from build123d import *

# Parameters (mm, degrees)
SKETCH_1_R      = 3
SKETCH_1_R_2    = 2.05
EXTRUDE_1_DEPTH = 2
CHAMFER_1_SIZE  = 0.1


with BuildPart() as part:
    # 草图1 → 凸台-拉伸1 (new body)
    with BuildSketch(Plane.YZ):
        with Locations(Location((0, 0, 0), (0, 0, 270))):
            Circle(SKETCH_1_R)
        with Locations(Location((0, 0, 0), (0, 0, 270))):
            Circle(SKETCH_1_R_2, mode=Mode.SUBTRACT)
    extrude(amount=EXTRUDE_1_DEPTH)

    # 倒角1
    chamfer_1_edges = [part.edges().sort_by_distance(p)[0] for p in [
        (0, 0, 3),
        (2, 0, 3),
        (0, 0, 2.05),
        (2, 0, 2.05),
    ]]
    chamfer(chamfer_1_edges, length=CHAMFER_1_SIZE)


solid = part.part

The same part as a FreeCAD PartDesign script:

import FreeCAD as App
import Part
import Sketcher

V = App.Vector
Q = App.Units.Quantity


def edges_at(feature, points):
    """Names of the edges that pass closest to the given points."""
    edges = feature.Shape.Edges
    near = lambda p: min(range(len(edges)), key=lambda i: edges[i].distToShape(Part.Vertex(*p))[0])
    return sorted({f"Edge{near(p) + 1}" for p in points})

doc = App.newDocument("Part")
body = doc.addObject("PartDesign::Body", "Body")

# Sketch on YZ plane
sketch1 = body.newObject("Sketcher::SketchObject", "Sketch")
sketch1.AttachmentSupport = (doc.getObject("YZ_Plane"), [""])
sketch1.MapMode = "FlatFace"
sketch1.addGeometry(Part.Circle(V(0, 0, 0), V(0, 0, 1), 3), False)
sketch1.addGeometry(Part.Circle(V(0, 0, 0), V(0, 0, 1), 2), False)
sketch1.addConstraint(Sketcher.Constraint("Coincident", 0, 3, -1, 1))
sketch1.addConstraint(Sketcher.Constraint("Coincident", 1, 3, -1, 1))
sketch1.addConstraint(Sketcher.Constraint("Diameter", 0, Q("6 mm")))
sketch1.addConstraint(Sketcher.Constraint("Diameter", 1, Q("4.1 mm")))
pad1 = body.newObject("PartDesign::Pad", "Pad")
pad1.Profile = sketch1
pad1.Length = 2
doc.recompute()

chamfer = body.newObject("PartDesign::Chamfer", "Chamfer")
chamfer.Base = (pad1, edges_at(pad1, [
    (0, 0, 3),
    (2, 0, 3),
    (0, 0, 2.05),
    (2, 0, 2.05),
]))
chamfer.Size = 0.1

doc.recompute()
